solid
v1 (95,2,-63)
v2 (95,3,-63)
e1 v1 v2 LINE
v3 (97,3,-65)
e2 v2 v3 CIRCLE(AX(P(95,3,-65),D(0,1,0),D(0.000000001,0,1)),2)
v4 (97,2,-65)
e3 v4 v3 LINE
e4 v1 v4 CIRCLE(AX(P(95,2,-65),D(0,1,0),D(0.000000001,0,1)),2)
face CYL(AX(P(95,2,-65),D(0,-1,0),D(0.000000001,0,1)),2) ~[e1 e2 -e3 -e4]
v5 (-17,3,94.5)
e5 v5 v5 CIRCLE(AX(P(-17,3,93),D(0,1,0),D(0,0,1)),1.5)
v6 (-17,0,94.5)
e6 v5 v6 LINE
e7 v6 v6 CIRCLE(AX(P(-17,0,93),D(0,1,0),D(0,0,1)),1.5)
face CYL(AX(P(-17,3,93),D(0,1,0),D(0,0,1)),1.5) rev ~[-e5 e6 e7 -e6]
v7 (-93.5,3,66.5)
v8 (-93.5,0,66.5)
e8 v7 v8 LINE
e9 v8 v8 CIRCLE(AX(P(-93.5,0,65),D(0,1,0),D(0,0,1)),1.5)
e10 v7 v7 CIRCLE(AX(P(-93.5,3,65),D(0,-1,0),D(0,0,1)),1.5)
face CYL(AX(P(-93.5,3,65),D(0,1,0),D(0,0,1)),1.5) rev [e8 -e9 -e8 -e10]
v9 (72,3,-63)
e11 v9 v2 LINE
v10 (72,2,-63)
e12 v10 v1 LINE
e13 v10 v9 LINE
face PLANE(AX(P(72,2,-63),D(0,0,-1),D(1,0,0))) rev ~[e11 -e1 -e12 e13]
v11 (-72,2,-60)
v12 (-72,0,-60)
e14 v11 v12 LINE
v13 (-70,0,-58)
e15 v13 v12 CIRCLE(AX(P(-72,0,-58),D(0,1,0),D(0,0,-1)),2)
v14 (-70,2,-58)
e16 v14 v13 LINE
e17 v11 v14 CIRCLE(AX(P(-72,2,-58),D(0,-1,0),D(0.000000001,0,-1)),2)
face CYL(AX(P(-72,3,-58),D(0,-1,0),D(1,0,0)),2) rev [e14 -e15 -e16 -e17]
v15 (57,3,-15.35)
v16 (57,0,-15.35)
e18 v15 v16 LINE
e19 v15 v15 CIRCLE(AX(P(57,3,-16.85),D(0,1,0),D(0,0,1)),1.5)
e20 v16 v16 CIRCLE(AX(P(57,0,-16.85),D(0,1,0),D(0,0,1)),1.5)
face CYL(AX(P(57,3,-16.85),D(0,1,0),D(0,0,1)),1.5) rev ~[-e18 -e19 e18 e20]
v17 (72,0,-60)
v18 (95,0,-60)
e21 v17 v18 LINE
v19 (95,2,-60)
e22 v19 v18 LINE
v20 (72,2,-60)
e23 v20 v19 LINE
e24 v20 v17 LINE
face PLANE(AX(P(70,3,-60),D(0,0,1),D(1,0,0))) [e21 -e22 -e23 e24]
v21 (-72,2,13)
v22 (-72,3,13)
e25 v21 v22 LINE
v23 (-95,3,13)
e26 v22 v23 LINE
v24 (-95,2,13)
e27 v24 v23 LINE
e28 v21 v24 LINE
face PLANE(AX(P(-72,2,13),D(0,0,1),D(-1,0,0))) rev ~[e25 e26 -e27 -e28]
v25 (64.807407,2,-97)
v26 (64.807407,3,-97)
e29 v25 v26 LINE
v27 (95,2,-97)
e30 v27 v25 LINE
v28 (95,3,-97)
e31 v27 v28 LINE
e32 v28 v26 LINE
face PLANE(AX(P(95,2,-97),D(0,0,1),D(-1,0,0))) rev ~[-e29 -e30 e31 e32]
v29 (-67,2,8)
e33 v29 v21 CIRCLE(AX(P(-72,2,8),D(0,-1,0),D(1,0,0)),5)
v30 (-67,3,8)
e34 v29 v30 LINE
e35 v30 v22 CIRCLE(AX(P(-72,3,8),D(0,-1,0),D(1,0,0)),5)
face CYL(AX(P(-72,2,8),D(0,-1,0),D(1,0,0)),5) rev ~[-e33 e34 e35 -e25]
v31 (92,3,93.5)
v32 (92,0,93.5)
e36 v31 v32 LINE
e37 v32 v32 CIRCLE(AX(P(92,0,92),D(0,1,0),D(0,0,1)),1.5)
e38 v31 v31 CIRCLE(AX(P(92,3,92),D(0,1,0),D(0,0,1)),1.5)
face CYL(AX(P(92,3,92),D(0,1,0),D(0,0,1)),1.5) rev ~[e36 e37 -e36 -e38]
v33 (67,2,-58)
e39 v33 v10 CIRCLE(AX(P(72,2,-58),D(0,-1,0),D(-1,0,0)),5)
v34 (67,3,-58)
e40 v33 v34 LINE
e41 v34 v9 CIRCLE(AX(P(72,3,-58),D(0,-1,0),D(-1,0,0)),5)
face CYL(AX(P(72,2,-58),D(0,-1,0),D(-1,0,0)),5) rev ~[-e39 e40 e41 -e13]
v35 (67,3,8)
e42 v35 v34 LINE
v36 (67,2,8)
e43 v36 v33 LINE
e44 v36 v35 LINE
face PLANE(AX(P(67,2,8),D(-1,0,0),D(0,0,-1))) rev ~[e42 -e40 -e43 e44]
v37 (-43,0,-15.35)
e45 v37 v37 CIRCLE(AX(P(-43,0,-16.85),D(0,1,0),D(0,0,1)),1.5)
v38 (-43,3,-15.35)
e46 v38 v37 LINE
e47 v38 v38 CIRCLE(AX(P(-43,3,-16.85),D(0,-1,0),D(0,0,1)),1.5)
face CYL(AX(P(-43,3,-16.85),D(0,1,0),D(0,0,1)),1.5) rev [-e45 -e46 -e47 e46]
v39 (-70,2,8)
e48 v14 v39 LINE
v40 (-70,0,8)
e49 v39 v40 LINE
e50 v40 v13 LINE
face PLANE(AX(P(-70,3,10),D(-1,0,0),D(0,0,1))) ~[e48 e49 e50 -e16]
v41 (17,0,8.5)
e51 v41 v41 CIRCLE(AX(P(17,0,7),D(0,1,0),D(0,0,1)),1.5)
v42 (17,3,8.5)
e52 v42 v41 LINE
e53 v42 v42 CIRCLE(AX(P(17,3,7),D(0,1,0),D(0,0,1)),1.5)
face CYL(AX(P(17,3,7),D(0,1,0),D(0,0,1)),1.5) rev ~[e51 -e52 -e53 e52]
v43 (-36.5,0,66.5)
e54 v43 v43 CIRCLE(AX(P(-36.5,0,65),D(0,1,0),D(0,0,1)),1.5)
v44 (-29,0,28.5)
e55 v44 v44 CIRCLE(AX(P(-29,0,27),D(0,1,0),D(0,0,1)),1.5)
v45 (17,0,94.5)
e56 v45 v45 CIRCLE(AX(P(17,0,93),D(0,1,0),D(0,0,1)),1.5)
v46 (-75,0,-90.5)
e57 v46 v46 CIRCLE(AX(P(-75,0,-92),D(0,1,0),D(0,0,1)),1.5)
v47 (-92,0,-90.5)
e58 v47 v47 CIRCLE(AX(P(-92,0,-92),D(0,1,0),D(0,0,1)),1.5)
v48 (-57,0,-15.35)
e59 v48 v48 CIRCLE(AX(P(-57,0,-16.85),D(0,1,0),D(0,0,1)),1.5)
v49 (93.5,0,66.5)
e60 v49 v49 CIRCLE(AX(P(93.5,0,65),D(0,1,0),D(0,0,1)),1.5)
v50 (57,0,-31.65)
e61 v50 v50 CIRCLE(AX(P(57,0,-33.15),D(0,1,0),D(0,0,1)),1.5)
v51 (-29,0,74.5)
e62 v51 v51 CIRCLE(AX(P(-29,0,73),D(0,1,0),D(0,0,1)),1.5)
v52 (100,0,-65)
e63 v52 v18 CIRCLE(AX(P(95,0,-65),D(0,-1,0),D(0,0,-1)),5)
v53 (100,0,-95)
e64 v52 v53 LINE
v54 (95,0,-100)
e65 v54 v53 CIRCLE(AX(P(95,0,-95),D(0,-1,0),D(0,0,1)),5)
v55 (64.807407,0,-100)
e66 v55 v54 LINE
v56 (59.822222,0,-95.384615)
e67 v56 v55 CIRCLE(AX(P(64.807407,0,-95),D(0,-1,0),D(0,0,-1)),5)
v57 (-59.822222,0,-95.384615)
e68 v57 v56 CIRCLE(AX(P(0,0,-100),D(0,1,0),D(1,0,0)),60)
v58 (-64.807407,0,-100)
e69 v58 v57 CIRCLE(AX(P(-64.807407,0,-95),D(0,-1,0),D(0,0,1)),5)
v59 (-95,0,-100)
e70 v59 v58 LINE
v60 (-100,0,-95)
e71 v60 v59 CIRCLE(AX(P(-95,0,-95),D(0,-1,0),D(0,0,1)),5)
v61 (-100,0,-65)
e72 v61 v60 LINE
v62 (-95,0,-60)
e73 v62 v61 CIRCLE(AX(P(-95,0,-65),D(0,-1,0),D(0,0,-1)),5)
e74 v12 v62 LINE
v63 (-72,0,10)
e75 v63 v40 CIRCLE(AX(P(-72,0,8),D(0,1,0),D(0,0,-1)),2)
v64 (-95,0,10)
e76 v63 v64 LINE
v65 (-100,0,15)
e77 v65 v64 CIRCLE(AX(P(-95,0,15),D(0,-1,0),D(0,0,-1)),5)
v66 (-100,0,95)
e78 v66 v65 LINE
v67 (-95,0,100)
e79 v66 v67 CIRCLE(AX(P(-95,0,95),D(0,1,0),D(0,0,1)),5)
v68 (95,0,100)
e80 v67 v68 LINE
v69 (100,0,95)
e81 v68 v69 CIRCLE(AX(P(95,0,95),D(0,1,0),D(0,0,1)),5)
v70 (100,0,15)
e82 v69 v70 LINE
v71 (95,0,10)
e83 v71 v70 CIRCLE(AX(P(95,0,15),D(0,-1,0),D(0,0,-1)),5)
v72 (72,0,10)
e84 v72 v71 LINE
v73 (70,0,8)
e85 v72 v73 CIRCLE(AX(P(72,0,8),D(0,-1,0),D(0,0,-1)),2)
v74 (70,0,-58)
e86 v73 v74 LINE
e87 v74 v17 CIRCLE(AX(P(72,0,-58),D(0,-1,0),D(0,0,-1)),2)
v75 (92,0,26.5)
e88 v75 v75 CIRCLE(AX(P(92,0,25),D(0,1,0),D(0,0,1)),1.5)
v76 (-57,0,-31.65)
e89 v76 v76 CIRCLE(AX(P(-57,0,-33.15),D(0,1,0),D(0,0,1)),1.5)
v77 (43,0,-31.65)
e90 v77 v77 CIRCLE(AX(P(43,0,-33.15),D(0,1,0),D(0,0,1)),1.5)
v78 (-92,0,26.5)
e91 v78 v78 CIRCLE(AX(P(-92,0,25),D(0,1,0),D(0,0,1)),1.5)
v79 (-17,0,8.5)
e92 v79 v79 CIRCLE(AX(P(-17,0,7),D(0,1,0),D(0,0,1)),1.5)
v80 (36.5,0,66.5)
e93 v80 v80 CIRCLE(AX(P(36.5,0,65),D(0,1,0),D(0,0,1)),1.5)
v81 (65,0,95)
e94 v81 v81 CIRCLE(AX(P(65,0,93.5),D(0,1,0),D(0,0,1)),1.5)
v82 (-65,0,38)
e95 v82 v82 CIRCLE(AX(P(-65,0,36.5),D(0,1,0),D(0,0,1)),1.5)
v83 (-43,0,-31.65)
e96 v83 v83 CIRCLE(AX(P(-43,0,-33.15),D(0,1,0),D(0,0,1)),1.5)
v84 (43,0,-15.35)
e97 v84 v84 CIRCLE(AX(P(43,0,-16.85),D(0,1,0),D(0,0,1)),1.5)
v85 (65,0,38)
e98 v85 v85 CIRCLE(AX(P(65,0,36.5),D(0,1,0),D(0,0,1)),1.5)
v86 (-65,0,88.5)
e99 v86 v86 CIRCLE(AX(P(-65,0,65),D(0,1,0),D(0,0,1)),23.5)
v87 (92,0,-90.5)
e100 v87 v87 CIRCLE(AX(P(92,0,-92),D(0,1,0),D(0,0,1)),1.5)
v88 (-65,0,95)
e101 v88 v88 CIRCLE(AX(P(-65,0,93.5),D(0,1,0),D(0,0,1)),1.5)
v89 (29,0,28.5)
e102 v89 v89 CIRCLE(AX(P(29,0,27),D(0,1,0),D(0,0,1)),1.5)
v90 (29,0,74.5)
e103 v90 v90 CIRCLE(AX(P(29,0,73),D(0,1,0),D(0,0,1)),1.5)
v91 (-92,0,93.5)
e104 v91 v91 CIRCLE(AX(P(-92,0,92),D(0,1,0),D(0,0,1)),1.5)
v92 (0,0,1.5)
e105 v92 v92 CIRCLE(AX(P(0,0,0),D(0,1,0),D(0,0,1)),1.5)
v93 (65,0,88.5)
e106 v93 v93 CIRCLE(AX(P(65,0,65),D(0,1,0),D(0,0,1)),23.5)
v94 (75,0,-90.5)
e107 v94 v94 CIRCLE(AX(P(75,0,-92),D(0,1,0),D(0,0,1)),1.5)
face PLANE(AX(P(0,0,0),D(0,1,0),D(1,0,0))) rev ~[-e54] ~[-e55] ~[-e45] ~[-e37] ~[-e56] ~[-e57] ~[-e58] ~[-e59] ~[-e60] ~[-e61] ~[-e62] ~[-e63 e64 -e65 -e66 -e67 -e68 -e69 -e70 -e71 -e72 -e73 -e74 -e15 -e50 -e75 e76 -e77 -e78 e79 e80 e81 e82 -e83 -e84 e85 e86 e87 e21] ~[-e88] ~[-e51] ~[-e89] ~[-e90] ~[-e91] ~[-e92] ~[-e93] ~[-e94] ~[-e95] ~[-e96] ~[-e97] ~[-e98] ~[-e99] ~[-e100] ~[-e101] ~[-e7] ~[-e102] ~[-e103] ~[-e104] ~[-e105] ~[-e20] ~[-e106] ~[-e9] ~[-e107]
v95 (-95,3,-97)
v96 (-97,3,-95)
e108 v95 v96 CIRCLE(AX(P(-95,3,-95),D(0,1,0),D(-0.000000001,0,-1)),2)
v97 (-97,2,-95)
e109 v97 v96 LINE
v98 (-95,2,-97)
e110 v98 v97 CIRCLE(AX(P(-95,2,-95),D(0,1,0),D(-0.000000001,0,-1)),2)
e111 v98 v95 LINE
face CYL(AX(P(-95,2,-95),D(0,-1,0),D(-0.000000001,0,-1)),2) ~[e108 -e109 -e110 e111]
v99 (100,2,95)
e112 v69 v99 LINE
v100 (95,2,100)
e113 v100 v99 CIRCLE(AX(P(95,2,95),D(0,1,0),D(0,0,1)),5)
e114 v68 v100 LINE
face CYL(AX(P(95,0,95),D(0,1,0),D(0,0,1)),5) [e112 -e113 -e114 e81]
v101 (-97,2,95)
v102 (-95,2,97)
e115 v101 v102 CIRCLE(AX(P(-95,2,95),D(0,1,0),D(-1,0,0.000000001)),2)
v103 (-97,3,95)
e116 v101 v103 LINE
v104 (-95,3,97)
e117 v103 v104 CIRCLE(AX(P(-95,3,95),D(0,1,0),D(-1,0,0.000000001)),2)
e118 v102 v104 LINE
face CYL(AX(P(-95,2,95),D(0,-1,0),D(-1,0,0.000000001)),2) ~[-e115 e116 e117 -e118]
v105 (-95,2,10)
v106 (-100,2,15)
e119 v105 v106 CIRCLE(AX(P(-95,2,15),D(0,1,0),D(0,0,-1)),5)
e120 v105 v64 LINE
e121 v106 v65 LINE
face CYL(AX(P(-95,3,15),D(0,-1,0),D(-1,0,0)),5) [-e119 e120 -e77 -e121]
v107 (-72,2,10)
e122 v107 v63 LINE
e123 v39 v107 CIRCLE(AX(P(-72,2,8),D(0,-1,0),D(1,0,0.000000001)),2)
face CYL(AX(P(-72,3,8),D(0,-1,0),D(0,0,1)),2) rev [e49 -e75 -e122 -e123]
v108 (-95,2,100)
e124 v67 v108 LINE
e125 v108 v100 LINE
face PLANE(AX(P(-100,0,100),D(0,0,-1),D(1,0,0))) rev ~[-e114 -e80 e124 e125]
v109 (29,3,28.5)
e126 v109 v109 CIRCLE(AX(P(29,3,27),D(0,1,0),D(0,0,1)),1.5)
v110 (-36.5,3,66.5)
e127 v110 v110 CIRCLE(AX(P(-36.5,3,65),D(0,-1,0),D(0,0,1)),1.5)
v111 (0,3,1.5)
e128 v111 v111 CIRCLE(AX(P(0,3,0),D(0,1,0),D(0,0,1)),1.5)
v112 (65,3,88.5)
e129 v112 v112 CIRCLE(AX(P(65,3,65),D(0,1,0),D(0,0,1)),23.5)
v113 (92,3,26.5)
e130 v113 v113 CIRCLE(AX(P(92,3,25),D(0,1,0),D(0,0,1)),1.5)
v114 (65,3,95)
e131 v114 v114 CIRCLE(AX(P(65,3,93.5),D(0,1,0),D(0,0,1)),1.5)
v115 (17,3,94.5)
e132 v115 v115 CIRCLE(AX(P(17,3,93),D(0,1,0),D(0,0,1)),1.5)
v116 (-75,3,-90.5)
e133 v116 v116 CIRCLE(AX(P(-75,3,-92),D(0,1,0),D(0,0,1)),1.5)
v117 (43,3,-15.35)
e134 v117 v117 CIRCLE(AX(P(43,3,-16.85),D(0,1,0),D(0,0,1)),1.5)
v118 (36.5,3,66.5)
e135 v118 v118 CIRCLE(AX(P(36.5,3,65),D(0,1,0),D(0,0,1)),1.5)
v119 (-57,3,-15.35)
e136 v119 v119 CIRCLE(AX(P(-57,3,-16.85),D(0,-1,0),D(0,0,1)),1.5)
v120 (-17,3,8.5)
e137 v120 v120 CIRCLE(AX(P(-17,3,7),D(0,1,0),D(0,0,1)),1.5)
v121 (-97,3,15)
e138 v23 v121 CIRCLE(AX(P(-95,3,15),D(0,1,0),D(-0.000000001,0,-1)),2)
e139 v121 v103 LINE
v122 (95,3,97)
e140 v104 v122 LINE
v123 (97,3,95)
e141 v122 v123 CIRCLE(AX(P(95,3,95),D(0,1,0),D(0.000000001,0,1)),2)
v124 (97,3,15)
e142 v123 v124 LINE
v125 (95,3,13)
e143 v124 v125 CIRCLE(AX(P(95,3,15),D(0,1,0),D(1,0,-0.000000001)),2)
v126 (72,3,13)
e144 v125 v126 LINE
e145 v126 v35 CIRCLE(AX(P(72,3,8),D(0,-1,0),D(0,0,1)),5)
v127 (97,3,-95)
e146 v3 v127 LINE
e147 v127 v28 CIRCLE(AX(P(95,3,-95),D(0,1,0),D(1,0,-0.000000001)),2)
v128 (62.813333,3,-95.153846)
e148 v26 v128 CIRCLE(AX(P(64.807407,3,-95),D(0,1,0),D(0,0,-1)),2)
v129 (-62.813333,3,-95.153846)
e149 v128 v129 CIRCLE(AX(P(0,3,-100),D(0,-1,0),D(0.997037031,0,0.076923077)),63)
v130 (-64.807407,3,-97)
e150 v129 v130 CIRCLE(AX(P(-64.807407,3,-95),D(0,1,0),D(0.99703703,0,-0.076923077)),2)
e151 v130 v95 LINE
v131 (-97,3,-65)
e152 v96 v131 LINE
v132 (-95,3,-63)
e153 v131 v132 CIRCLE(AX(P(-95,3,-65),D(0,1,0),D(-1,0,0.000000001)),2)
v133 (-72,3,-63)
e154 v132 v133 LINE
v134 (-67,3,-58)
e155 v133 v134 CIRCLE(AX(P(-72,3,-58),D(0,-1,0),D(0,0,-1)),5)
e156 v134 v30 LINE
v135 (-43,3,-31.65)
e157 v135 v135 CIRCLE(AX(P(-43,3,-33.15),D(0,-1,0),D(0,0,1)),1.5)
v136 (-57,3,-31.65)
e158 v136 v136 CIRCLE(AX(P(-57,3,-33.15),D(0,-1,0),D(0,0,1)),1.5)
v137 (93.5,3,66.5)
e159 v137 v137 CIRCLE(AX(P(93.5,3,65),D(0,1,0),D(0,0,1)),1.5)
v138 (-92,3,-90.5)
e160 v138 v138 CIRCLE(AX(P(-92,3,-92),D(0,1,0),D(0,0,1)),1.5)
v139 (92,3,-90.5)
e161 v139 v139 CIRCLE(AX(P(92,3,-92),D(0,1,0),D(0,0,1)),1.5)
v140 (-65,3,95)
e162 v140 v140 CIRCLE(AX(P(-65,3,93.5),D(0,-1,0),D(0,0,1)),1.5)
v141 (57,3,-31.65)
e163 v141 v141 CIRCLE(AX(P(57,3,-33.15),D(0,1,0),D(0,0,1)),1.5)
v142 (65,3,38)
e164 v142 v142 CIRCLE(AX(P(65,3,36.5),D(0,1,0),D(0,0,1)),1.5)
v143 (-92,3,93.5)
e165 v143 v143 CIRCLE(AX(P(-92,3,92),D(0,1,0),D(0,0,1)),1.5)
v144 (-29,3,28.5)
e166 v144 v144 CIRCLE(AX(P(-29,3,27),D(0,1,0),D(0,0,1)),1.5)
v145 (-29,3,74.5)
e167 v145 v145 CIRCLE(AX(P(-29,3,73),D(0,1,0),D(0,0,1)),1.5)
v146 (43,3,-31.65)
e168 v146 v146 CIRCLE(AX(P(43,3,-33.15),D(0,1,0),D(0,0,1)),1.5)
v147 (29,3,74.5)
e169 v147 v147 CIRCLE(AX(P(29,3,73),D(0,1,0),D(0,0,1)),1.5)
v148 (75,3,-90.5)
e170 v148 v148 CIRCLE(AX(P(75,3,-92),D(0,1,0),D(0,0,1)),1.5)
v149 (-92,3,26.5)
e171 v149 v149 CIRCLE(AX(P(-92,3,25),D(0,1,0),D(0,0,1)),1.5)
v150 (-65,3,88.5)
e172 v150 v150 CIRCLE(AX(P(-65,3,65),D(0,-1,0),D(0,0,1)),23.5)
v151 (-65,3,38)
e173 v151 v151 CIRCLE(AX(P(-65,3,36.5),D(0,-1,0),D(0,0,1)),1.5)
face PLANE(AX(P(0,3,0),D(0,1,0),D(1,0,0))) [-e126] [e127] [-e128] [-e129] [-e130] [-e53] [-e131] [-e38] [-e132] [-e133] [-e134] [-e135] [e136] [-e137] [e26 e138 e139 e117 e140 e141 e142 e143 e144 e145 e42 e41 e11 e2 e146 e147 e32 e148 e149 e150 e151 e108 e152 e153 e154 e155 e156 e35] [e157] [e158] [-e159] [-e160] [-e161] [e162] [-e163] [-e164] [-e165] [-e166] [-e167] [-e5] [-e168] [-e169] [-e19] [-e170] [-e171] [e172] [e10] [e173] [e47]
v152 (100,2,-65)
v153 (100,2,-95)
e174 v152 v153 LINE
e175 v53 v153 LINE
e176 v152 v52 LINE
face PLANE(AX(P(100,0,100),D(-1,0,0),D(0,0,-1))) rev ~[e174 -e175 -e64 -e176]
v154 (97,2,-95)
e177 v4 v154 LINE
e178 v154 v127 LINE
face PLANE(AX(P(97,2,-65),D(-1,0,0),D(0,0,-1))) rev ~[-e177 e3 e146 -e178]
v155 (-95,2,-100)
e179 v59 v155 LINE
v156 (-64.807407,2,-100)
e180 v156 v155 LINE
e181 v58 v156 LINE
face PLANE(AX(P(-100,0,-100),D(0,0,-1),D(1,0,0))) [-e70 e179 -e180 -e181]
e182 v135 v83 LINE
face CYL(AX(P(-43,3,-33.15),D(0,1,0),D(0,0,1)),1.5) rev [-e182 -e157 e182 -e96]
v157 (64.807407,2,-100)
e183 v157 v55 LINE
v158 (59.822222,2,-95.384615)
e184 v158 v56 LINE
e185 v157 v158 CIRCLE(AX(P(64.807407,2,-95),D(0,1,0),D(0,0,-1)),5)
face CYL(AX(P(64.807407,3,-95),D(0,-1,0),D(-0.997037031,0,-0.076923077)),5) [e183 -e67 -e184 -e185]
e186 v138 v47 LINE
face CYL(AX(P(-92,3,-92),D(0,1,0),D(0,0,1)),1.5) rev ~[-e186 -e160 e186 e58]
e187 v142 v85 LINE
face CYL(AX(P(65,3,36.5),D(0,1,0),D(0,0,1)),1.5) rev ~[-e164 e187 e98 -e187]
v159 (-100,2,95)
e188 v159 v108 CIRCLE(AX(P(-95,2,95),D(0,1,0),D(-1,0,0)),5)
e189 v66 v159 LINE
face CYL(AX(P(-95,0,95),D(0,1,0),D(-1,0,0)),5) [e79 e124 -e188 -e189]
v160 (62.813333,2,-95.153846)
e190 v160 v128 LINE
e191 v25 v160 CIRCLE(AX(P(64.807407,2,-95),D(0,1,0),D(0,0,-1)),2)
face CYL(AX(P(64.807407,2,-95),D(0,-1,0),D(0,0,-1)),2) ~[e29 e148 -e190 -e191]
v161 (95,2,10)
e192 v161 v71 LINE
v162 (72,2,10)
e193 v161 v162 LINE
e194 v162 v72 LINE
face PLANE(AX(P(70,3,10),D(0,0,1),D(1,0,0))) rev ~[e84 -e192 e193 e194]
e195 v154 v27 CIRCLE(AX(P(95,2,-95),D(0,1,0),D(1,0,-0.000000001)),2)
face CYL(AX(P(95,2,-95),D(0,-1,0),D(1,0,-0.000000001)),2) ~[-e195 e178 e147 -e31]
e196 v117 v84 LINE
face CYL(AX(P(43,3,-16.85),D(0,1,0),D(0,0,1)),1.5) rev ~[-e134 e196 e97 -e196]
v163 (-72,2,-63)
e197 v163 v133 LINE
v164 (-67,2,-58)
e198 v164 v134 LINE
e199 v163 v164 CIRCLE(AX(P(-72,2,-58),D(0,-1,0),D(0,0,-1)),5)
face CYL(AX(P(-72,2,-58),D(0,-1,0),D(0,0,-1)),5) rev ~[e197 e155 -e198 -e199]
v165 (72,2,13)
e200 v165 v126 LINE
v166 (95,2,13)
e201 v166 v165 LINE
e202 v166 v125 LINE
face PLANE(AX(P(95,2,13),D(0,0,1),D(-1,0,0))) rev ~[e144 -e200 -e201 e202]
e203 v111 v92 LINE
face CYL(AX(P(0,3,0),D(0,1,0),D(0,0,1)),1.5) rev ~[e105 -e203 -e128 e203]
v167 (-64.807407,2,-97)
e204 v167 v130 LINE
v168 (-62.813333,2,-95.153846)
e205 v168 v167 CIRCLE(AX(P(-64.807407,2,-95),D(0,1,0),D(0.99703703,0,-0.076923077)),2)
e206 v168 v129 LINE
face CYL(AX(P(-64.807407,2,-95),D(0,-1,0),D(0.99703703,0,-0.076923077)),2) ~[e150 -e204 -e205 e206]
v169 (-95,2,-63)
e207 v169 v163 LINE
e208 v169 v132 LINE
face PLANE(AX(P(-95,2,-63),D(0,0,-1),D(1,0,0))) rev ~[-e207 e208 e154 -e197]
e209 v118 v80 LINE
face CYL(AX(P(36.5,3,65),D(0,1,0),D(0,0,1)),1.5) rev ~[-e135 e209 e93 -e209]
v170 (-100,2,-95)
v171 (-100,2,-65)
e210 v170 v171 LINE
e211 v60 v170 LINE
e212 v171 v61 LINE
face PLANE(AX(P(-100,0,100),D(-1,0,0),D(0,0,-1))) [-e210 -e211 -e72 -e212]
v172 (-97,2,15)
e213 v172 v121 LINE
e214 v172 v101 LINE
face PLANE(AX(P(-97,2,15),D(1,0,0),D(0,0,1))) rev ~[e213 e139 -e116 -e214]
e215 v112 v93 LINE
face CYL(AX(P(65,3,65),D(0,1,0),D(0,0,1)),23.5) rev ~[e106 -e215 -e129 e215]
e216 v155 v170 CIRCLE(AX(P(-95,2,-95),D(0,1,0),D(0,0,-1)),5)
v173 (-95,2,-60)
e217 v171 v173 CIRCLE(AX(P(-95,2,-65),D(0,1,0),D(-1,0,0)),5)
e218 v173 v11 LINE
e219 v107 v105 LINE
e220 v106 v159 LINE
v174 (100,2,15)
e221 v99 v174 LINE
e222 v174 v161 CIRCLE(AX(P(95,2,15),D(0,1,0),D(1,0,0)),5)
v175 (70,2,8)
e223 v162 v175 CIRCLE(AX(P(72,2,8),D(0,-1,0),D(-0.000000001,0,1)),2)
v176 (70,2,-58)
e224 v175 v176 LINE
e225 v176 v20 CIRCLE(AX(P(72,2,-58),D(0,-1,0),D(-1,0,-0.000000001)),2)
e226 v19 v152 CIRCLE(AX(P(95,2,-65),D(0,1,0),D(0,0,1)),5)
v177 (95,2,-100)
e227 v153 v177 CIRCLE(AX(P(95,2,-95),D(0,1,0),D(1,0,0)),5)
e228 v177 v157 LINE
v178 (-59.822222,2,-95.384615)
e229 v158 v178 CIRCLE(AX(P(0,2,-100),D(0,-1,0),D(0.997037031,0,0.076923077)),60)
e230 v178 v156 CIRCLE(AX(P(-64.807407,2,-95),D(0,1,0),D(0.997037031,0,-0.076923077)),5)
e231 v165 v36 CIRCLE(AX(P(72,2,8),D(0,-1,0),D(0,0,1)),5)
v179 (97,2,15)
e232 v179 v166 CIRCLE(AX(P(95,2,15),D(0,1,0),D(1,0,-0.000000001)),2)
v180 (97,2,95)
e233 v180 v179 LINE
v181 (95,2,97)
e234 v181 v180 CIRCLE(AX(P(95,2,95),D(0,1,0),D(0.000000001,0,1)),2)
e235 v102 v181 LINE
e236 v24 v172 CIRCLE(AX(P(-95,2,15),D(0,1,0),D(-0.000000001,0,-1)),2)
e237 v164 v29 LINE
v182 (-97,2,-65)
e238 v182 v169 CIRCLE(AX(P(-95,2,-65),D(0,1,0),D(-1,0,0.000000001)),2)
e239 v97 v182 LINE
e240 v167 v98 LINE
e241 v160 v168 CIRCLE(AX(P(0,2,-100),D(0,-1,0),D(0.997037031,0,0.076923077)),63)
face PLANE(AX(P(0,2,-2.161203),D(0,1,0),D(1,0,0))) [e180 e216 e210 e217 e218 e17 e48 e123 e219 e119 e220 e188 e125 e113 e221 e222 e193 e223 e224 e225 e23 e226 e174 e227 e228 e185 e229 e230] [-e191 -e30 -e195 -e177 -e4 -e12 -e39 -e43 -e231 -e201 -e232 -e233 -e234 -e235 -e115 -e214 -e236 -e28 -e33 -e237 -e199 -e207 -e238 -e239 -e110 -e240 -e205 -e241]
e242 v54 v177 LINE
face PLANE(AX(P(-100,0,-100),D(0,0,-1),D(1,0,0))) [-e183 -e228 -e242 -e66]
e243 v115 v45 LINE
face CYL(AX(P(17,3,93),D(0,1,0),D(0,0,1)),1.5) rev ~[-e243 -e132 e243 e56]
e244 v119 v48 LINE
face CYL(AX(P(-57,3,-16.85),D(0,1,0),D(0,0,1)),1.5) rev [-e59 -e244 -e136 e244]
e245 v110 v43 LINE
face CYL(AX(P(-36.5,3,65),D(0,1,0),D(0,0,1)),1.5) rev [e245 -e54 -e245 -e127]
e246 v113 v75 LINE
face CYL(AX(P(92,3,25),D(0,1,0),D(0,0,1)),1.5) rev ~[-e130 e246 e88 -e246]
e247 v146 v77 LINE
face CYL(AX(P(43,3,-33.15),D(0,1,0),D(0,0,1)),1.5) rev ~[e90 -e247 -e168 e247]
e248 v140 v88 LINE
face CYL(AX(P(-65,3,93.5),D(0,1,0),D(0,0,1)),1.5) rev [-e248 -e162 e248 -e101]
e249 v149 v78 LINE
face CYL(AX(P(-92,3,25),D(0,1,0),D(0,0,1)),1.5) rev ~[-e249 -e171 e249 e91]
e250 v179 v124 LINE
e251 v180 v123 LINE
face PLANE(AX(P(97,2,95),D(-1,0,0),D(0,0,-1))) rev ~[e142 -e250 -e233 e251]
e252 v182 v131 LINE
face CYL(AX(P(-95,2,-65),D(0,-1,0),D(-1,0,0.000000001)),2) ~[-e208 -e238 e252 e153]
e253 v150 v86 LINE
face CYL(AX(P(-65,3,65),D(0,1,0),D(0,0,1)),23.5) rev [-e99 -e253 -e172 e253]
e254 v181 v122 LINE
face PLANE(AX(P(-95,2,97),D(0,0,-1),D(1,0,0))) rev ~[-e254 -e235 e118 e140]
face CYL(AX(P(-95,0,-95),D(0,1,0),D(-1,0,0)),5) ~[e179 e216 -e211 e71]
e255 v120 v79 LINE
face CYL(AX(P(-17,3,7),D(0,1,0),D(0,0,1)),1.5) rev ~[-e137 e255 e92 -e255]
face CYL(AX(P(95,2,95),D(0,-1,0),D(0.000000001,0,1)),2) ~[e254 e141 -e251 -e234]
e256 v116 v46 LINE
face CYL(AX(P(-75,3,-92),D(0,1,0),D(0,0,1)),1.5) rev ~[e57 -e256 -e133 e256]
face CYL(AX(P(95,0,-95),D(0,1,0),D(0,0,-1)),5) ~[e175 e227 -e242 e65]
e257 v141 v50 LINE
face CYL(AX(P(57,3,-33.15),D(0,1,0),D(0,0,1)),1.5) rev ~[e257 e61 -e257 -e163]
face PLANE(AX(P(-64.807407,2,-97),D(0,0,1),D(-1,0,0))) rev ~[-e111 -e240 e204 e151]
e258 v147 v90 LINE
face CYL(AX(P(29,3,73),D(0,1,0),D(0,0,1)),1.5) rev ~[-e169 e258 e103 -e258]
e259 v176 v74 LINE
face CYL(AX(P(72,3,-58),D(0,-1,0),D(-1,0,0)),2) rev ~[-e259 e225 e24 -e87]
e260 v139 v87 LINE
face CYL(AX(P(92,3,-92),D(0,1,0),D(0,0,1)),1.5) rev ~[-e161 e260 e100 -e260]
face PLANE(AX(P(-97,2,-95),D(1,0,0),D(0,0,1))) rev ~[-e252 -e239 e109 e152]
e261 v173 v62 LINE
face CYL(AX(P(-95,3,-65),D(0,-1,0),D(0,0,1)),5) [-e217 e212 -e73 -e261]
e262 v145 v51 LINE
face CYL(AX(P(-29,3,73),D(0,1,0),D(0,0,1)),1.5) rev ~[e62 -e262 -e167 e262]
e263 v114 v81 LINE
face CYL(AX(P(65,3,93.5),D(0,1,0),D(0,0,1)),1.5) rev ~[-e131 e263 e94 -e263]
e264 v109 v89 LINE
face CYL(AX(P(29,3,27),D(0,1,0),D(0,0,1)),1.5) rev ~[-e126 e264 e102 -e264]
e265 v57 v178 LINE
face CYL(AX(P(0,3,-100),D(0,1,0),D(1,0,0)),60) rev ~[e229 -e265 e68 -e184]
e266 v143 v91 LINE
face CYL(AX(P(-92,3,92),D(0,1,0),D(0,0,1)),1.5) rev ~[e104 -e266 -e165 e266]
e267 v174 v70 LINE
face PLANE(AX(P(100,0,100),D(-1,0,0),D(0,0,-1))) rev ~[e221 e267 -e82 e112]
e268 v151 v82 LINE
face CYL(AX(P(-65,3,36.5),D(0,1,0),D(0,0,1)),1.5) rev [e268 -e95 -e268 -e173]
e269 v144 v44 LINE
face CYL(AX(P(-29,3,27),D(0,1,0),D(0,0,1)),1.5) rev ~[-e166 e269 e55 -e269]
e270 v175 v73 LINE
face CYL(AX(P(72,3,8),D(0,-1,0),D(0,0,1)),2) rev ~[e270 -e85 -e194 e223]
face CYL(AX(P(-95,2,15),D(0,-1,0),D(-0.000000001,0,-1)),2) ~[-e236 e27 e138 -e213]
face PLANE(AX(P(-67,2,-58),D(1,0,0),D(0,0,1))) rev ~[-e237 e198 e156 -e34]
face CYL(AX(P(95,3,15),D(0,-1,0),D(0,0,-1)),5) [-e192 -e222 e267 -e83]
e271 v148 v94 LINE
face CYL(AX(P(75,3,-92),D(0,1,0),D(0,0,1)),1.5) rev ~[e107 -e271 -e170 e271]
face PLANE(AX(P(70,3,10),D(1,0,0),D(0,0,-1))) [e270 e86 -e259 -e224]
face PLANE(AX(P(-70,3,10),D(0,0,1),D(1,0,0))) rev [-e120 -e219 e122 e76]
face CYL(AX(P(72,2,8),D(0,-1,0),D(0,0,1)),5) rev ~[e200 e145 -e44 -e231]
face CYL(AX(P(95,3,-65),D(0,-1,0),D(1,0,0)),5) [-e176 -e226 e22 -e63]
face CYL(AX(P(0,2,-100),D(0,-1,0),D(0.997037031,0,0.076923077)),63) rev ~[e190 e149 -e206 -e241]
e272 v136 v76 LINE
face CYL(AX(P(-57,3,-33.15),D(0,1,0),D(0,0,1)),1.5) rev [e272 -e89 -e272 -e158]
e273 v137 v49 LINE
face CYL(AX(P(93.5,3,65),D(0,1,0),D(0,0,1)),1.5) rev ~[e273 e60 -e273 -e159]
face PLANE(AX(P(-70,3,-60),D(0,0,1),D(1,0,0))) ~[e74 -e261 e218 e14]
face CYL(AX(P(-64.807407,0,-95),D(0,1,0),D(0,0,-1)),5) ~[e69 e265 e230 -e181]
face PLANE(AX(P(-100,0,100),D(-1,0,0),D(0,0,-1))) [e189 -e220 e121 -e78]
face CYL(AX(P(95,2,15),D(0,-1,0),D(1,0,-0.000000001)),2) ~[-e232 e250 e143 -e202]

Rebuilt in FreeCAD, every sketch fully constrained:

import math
import FreeCAD as App
import Part
import Sketcher
from FreeCAD import Vector
Q = App.Units.Quantity


def edges_at(feature, points):
    """Names of the edges that pass closest to the given points."""
    edges = feature.Shape.Edges
    near = lambda p: min(range(len(edges)), key=lambda i: edges[i].distToShape(Part.Vertex(*p))[0])
    return sorted({f"Edge{near(p) + 1}" for p in points})

doc = App.newDocument("Part")
body = doc.addObject("PartDesign::Body", "Body")

# Sketch on XZ plane
sketch1 = body.newObject("Sketcher::SketchObject", "Sketch")
sketch1.AttachmentSupport = (doc.getObject("XZ_Plane"), [""])
sketch1.MapMode = "FlatFace"
sketch1.addGeometry([
    Part.LineSegment(Vector(-100, -100, 0), Vector(-100, 100, 0)),
    Part.LineSegment(Vector(-100, 100, 0), Vector(100, 100, 0)),
    Part.LineSegment(Vector(100, 100, 0), Vector(100, -100, 0)),
    Part.LineSegment(Vector(100, -100, 0), Vector(-100, -100, 0)),
], False)
sketch1.addConstraint([
    Sketcher.Constraint("Coincident", 0, 2, 1, 1),
    Sketcher.Constraint("Coincident", 1, 2, 2, 1),
    Sketcher.Constraint("Coincident", 2, 2, 3, 1),
    Sketcher.Constraint("Coincident", 3, 2, 0, 1),
    Sketcher.Constraint("Vertical", 0),
    Sketcher.Constraint("Horizontal", 1),
    Sketcher.Constraint("Vertical", 2),
    Sketcher.Constraint("Horizontal", 3),
    Sketcher.Constraint("Symmetric", 0, 2, 2, 2, -1, 1),
    Sketcher.Constraint("Equal", 3, 0),
    Sketcher.Constraint("DistanceX", 1, 1, 1, 2, Q("200 mm")),
])
pad1 = body.newObject("PartDesign::Pad", "Pad")
pad1.Profile = sketch1
pad1.Length = 3
pad1.Reversed = True

# Sketch on XZ plane
sketch2 = body.newObject("Sketcher::SketchObject", "Sketch001")
sketch2.AttachmentSupport = (doc.getObject("XZ_Plane"), [""])
sketch2.MapMode = "FlatFace"
sketch2.AttachmentOffset = App.Placement(Vector(0, 0, -3), App.Rotation())
sketch2.addGeometry([
    Part.Circle(Vector(92, -92, 0), Vector(0, 0, 1), 1.5),  # 0
    Part.Circle(Vector(92, 92, 0), Vector(0, 0, 1), 1.5),  # 1
    Part.Circle(Vector(-92, 92, 0), Vector(0, 0, 1), 1.5),  # 2
    Part.Circle(Vector(-92, -92, 0), Vector(0, 0, 1), 1.5),  # 3
    Part.Circle(Vector(92, 25, 0), Vector(0, 0, 1), 1.5),  # 4
    Part.Circle(Vector(93.5, 65, 0), Vector(0, 0, 1), 1.5),  # 5
    Part.Circle(Vector(17, 93, 0), Vector(0, 0, 1), 1.5),  # 6
    Part.Circle(Vector(29, 73, 0), Vector(0, 0, 1), 1.5),  # 7
    Part.Circle(Vector(75, -92, 0), Vector(0, 0, 1), 1.5),  # 8
    Part.Circle(Vector(29, 27, 0), Vector(0, 0, 1), 1.5),  # 9
    Part.Circle(Vector(17, 7, 0), Vector(0, 0, 1), 1.5),  # 10
    Part.Circle(Vector(-92, 25, 0), Vector(0, 0, 1), 1.5),  # 11
    Part.Circle(Vector(-17, 93, 0), Vector(0, 0, 1), 1.5),  # 12
    Part.Circle(Vector(-29, 73, 0), Vector(0, 0, 1), 1.5),  # 13
    Part.Circle(Vector(-29, 27, 0), Vector(0, 0, 1), 1.5),  # 14
    Part.Circle(Vector(-17, 7, 0), Vector(0, 0, 1), 1.5),  # 15
    Part.Circle(Vector(65, 65, 0), Vector(0, 0, 1), 23.5),  # 16
    Part.Circle(Vector(65, 93.5, 0), Vector(0, 0, 1), 1.5),  # 17
    Part.Circle(Vector(36.5, 65, 0), Vector(0, 0, 1), 1.5),  # 18
    Part.Circle(Vector(65, 36.5, 0), Vector(0, 0, 1), 1.5),  # 19
    Part.Circle(Vector(57, -16.85, 0), Vector(0, 0, 1), 1.5),  # 20
    Part.Circle(Vector(57, -33.15, 0), Vector(0, 0, 1), 1.5),  # 21
    Part.Circle(Vector(43, -16.85, 0), Vector(0, 0, 1), 1.5),  # 22
    Part.Circle(Vector(43, -33.15, 0), Vector(0, 0, 1), 1.5),  # 23
    Part.Circle(Vector(0, -100, 0), Vector(0, 0, 1), 60),  # 24
    Part.Circle(Vector(-75, -92, 0), Vector(0, 0, 1), 1.5),  # 25
    Part.Circle(Vector(0, 0, 0), Vector(0, 0, 1), 1.5),  # 26
    Part.LineSegment(Vector(70, -60, 0), Vector(70, 10, 0)),  # 27
    Part.LineSegment(Vector(70, 10, 0), Vector(100, 10, 0)),  # 28
    Part.LineSegment(Vector(100, 10, 0), Vector(100, -60, 0)),  # 29
    Part.LineSegment(Vector(100, -60, 0), Vector(70, -60, 0)),  # 30
], False)
sketch2.addConstraint([
    Sketcher.Constraint("Coincident", 27, 2, 28, 1),
    Sketcher.Constraint("Coincident", 28, 2, 29, 1),
    Sketcher.Constraint("Coincident", 29, 2, 30, 1),
    Sketcher.Constraint("Coincident", 30, 2, 27, 1),
    Sketcher.Constraint("Vertical", 27),
    Sketcher.Constraint("Horizontal", 28),
    Sketcher.Constraint("Vertical", 29),
    Sketcher.Constraint("Horizontal", 30),
    Sketcher.Constraint("Coincident", 26, 3, -1, 1),
    Sketcher.Constraint("Equal", 0, 1),
    Sketcher.Constraint("Equal", 1, 2),
    Sketcher.Constraint("Equal", 2, 3),
    Sketcher.Constraint("Equal", 3, 4),
    Sketcher.Constraint("Equal", 4, 5),
    Sketcher.Constraint("Equal", 5, 6),
    Sketcher.Constraint("Equal", 6, 7),
    Sketcher.Constraint("Equal", 7, 8),
    Sketcher.Constraint("Equal", 8, 9),
    Sketcher.Constraint("Equal", 9, 10),
    Sketcher.Constraint("Equal", 10, 11),
    Sketcher.Constraint("Equal", 11, 12),
    Sketcher.Constraint("Equal", 12, 13),
    Sketcher.Constraint("Equal", 13, 14),
    Sketcher.Constraint("Equal", 14, 15),
    Sketcher.Constraint("Equal", 15, 17),
    Sketcher.Constraint("Equal", 17, 18),
    Sketcher.Constraint("Equal", 18, 19),
    Sketcher.Constraint("Equal", 19, 20),
    Sketcher.Constraint("Equal", 20, 21),
    Sketcher.Constraint("Equal", 21, 22),
    Sketcher.Constraint("Equal", 22, 23),
    Sketcher.Constraint("Equal", 23, 25),
    Sketcher.Constraint("Equal", 25, 26),
    Sketcher.Constraint("Symmetric", 0, 3, 2, 3, -1, 1),
    Sketcher.Constraint("Symmetric", 1, 3, 3, 3, -1, 1),
    Sketcher.Constraint("Symmetric", 1, 3, 2, 3, -2),
    Sketcher.Constraint("Symmetric", 4, 3, 11, 3, -2),
    Sketcher.Constraint("Symmetric", 6, 3, 12, 3, -2),
    Sketcher.Constraint("Symmetric", 7, 3, 13, 3, -2),
    Sketcher.Constraint("Symmetric", 9, 3, 14, 3, -2),
    Sketcher.Constraint("Symmetric", 10, 3, 15, 3, -2),
    Sketcher.Constraint("Symmetric", 8, 3, 25, 3, -2),
    Sketcher.Constraint("PointOnObject", 24, 3, -2),
    Sketcher.Constraint("Horizontal", 3, 3, 8, 3),
    Sketcher.Constraint("Horizontal", 5, 3, 16, 3),
    Sketcher.Constraint("Horizontal", 16, 3, 18, 3),
    Sketcher.Constraint("Horizontal", 20, 3, 22, 3),
    Sketcher.Constraint("Horizontal", 21, 3, 23, 3),
    Sketcher.Constraint("Vertical", 1, 3, 4, 3),
    Sketcher.Constraint("Vertical", 7, 3, 9, 3),
    Sketcher.Constraint("Vertical", 6, 3, 10, 3),
    Sketcher.Constraint("Vertical", 16, 3, 17, 3),
    Sketcher.Constraint("Vertical", 17, 3, 19, 3),
    Sketcher.Constraint("Vertical", 20, 3, 21, 3),
    Sketcher.Constraint("Vertical", 22, 3, 23, 3),
    Sketcher.Constraint("Diameter", 0, Q("3 mm")),
    Sketcher.Constraint("Diameter", 16, Q("47 mm")),
    Sketcher.Constraint("Diameter", 24, Q("120 mm")),
    Sketcher.Constraint("DistanceX", 28, 1, 28, 2, Q("30 mm")),
    Sketcher.Constraint("DistanceY", 27, 1, 27, 2, Q("70 mm")),
    Sketcher.Constraint("DistanceX", -1, 1, 0, 3, Q("92 mm")),
    Sketcher.Constraint("DistanceY", 0, 3, -1, 1, Q("92 mm")),
    Sketcher.Constraint("DistanceY", -1, 1, 4, 3, Q("25 mm")),
    Sketcher.Constraint("DistanceY", -1, 1, 5, 3, Q("65 mm")),
    Sketcher.Constraint("DistanceX", -1, 1, 6, 3, Q("17 mm")),
    Sketcher.Constraint("DistanceY", -1, 1, 6, 3, Q("93 mm")),
    Sketcher.Constraint("DistanceX", -1, 1, 7, 3, Q("29 mm")),
    Sketcher.Constraint("DistanceY", -1, 1, 7, 3, Q("73 mm")),
    Sketcher.Constraint("DistanceX", -1, 1, 8, 3, Q("75 mm")),
    Sketcher.Constraint("DistanceY", -1, 1, 9, 3, Q("27 mm")),
    Sketcher.Constraint("DistanceY", -1, 1, 10, 3, Q("7 mm")),
    Sketcher.Constraint("DistanceX", -1, 1, 16, 3, Q("65 mm")),
    Sketcher.Constraint("DistanceX", -1, 1, 20, 3, Q("57 mm")),
    Sketcher.Constraint("DistanceX", -1, 1, 22, 3, Q("43 mm")),
    Sketcher.Constraint("DistanceY", 24, 3, -1, 1, Q("100 mm")),
    Sketcher.Constraint("DistanceX", -1, 1, 27, 2, Q("70 mm")),
    Sketcher.Constraint("DistanceY", -1, 1, 27, 2, Q("10 mm")),
    Sketcher.Constraint("DistanceX", -1, 1, 5, 3, Q("93.5 mm")),
    Sketcher.Constraint("DistanceY", -1, 1, 17, 3, Q("93.5 mm")),
    Sketcher.Constraint("DistanceX", -1, 1, 18, 3, Q("36.5 mm")),
    Sketcher.Constraint("DistanceY", -1, 1, 19, 3, Q("36.5 mm")),
    Sketcher.Constraint("DistanceY", 21, 3, 20, 3, Q("16.3 mm")),
    Sketcher.Constraint("DistanceY", 20, 3, -1, 1, Q("16.85 mm")),
])
pocket1 = body.newObject("PartDesign::Pocket", "Pocket")
pocket1.Profile = sketch2
pocket1.Length = 5
pocket1.Reversed = True
doc.recompute()

mirrored = body.newObject("PartDesign::Mirrored", "Mirrored")
mirrored.Originals = [pocket1]
mirrored.MirrorPlane = (doc.getObject("YZ_Plane"), [""])
body.Tip = mirrored
doc.recompute()

fillet = body.newObject("PartDesign::Fillet", "Fillet")
fillet.Base = (mirrored, edges_at(mirrored, [
    (-100, 1.5, 10),
    (-100, 1.5, -60),
    (-100, 1.5, -100),
    (100, 1.5, -100),
    (100, 1.5, 100),
    (-100, 1.5, 100),
    (60, 1.5, -100),
    (-60, 1.5, -100),
    (100, 1.5, -60),
    (100, 1.5, 10),
]))
fillet.Radius = 5
doc.recompute()

fillet2 = body.newObject("PartDesign::Fillet", "Fillet001")
fillet2.Base = (fillet, edges_at(fillet, [
    (-70, 1.5, -60),
    (-70, 1.5, 10),
    (70, 1.5, 10),
    (70, 1.5, -60),
]))
fillet2.Radius = 2

# Sketch on XZ plane
sketch3 = body.newObject("Sketcher::SketchObject", "Sketch002")
sketch3.AttachmentSupport = (doc.getObject("XZ_Plane"), [""])
sketch3.MapMode = "FlatFace"
sketch3.AttachmentOffset = App.Placement(Vector(0, 0, -2), App.Rotation())
sketch3.addGeometry([
    Part.LineSegment(Vector(-95, 100, 0), Vector(95, 100, 0)),  # 0
    Part.ArcOfCircle(Part.Circle(Vector(95, 95, 0), Vector(0, 0, 1), 5), math.radians(0), math.radians(90)),  # 1
    Part.LineSegment(Vector(100, 95, 0), Vector(100, 15, 0)),  # 2
    Part.ArcOfCircle(Part.Circle(Vector(95, 15, 0), Vector(0, 0, 1), 5), math.radians(-90), math.radians(0)),  # 3
    Part.LineSegment(Vector(95, 10, 0), Vector(72, 10, 0)),  # 4
    Part.ArcOfCircle(Part.Circle(Vector(72, 8, 0), Vector(0, 0, 1), 2), math.radians(90), math.radians(180)),  # 5
    Part.LineSegment(Vector(70, 8, 0), Vector(70, -58, 0)),  # 6
    Part.ArcOfCircle(Part.Circle(Vector(72, -58, 0), Vector(0, 0, 1), 2), math.radians(-180), math.radians(-90)),  # 7
    Part.LineSegment(Vector(72, -60, 0), Vector(95, -60, 0)),  # 8
    Part.ArcOfCircle(Part.Circle(Vector(95, -65, 0), Vector(0, 0, 1), 5), math.radians(0), math.radians(90)),  # 9
    Part.LineSegment(Vector(100, -65, 0), Vector(100, -95, 0)),  # 10
    Part.ArcOfCircle(Part.Circle(Vector(95, -95, 0), Vector(0, 0, 1), 5), math.radians(-90), math.radians(0)),  # 11
    Part.LineSegment(Vector(95, -100, 0), Vector(64.807407, -100, 0)),  # 12
    Part.ArcOfCircle(Part.Circle(Vector(64.807407, -95, 0), Vector(0, 0, 1), 5), math.radians(-175.588274), math.radians(-90)),  # 13
    Part.ArcOfCircle(Part.Circle(Vector(0, -100, 0), Vector(0, 0, 1), 60), math.radians(4.411726), math.radians(175.588274)),  # 14
    Part.ArcOfCircle(Part.Circle(Vector(-64.807407, -95, 0), Vector(0, 0, 1), 5), math.radians(-90), math.radians(-4.411726)),  # 15
    Part.LineSegment(Vector(-64.807407, -100, 0), Vector(-95, -100, 0)),  # 16
    Part.ArcOfCircle(Part.Circle(Vector(-95, -95, 0), Vector(0, 0, 1), 5), math.radians(180), math.radians(270)),  # 17
    Part.LineSegment(Vector(-100, -95, 0), Vector(-100, -65, 0)),  # 18
    Part.ArcOfCircle(Part.Circle(Vector(-95, -65, 0), Vector(0, 0, 1), 5), math.radians(90), math.radians(180)),  # 19
    Part.LineSegment(Vector(-95, -60, 0), Vector(-72, -60, 0)),  # 20
    Part.ArcOfCircle(Part.Circle(Vector(-72, -58, 0), Vector(0, 0, 1), 2), math.radians(-90), math.radians(0)),  # 21
    Part.LineSegment(Vector(-70, -58, 0), Vector(-70, 8, 0)),  # 22
    Part.ArcOfCircle(Part.Circle(Vector(-72, 8, 0), Vector(0, 0, 1), 2), math.radians(0), math.radians(90)),  # 23
    Part.LineSegment(Vector(-72, 10, 0), Vector(-95, 10, 0)),  # 24
    Part.ArcOfCircle(Part.Circle(Vector(-95, 15, 0), Vector(0, 0, 1), 5), math.radians(180), math.radians(270)),  # 25
    Part.LineSegment(Vector(-100, 15, 0), Vector(-100, 95, 0)),  # 26
    Part.ArcOfCircle(Part.Circle(Vector(-95, 95, 0), Vector(0, 0, 1), 5), math.radians(90), math.radians(180)),  # 27
    Part.LineSegment(Vector(-97, -65, 0), Vector(-97, -95, 0)),  # 28
    Part.ArcOfCircle(Part.Circle(Vector(-95, -95, 0), Vector(0, 0, 1), 2), math.radians(-180), math.radians(-90)),  # 29
    Part.LineSegment(Vector(-95, -97, 0), Vector(-64.807407, -97, 0)),  # 30
    Part.ArcOfCircle(Part.Circle(Vector(-64.807407, -95, 0), Vector(0, 0, 1), 2), math.radians(-90), math.radians(-4.411726)),  # 31
    Part.ArcOfCircle(Part.Circle(Vector(0, -100, 0), Vector(0, 0, 1), 63), math.radians(4.411726), math.radians(175.588274)),  # 32
    Part.ArcOfCircle(Part.Circle(Vector(64.807407, -95, 0), Vector(0, 0, 1), 2), math.radians(-175.588274), math.radians(-90)),  # 33
    Part.LineSegment(Vector(64.807407, -97, 0), Vector(95, -97, 0)),  # 34
    Part.ArcOfCircle(Part.Circle(Vector(95, -95, 0), Vector(0, 0, 1), 2), math.radians(-90), math.radians(0)),  # 35
    Part.LineSegment(Vector(97, -95, 0), Vector(97, -65, 0)),  # 36
    Part.ArcOfCircle(Part.Circle(Vector(95, -65, 0), Vector(0, 0, 1), 2), math.radians(0), math.radians(90)),  # 37
    Part.LineSegment(Vector(95, -63, 0), Vector(72, -63, 0)),  # 38
    Part.ArcOfCircle(Part.Circle(Vector(72, -58, 0), Vector(0, 0, 1), 5), math.radians(180), math.radians(270)),  # 39
    Part.LineSegment(Vector(67, -58, 0), Vector(67, 8, 0)),  # 40
    Part.ArcOfCircle(Part.Circle(Vector(72, 8, 0), Vector(0, 0, 1), 5), math.radians(90), math.radians(180)),  # 41
    Part.LineSegment(Vector(72, 13, 0), Vector(95, 13, 0)),  # 42
    Part.ArcOfCircle(Part.Circle(Vector(95, 15, 0), Vector(0, 0, 1), 2), math.radians(-90), math.radians(0)),  # 43
    Part.LineSegment(Vector(97, 15, 0), Vector(97, 95, 0)),  # 44
    Part.ArcOfCircle(Part.Circle(Vector(95, 95, 0), Vector(0, 0, 1), 2), math.radians(0), math.radians(90)),  # 45
    Part.LineSegment(Vector(95, 97, 0), Vector(-95, 97, 0)),  # 46
    Part.ArcOfCircle(Part.Circle(Vector(-95, 95, 0), Vector(0, 0, 1), 2), math.radians(90), math.radians(180)),  # 47
    Part.LineSegment(Vector(-97, 95, 0), Vector(-97, 15, 0)),  # 48
    Part.ArcOfCircle(Part.Circle(Vector(-95, 15, 0), Vector(0, 0, 1), 2), math.radians(-180), math.radians(-90)),  # 49
    Part.LineSegment(Vector(-95, 13, 0), Vector(-72, 13, 0)),  # 50
    Part.ArcOfCircle(Part.Circle(Vector(-72, 8, 0), Vector(0, 0, 1), 5), math.radians(0), math.radians(90)),  # 51
    Part.LineSegment(Vector(-67, 8, 0), Vector(-67, -58, 0)),  # 52
    Part.ArcOfCircle(Part.Circle(Vector(-72, -58, 0), Vector(0, 0, 1), 5), math.radians(-90), math.radians(0)),  # 53
    Part.LineSegment(Vector(-72, -63, 0), Vector(-95, -63, 0)),  # 54
    Part.ArcOfCircle(Part.Circle(Vector(-95, -65, 0), Vector(0, 0, 1), 2), math.radians(90), math.radians(180)),  # 55
], False)
sketch3.addConstraint([
    Sketcher.Constraint("Tangent", 0, 2, 1, 2),
    Sketcher.Constraint("Tangent", 1, 1, 2, 1),
    Sketcher.Constraint("Tangent", 2, 2, 3, 2),
    Sketcher.Constraint("Tangent", 3, 1, 4, 1),
    Sketcher.Constraint("Tangent", 4, 2, 5, 1),
    Sketcher.Constraint("Tangent", 5, 2, 6, 1),
    Sketcher.Constraint("Tangent", 6, 2, 7, 1),
    Sketcher.Constraint("Tangent", 7, 2, 8, 1),
    Sketcher.Constraint("Tangent", 8, 2, 9, 2),
    Sketcher.Constraint("Tangent", 9, 1, 10, 1),
    Sketcher.Constraint("Tangent", 10, 2, 11, 2),
    Sketcher.Constraint("Tangent", 11, 1, 12, 1),
    Sketcher.Constraint("Tangent", 12, 2, 13, 2),
    Sketcher.Constraint("Tangent", 13, 1, 14, 1),
    Sketcher.Constraint("Tangent", 14, 2, 15, 2),
    Sketcher.Constraint("Tangent", 15, 1, 16, 1),
    Sketcher.Constraint("Tangent", 16, 2, 17, 2),
    Sketcher.Constraint("Tangent", 17, 1, 18, 1),
    Sketcher.Constraint("Tangent", 18, 2, 19, 2),
    Sketcher.Constraint("Tangent", 19, 1, 20, 1),
    Sketcher.Constraint("Tangent", 20, 2, 21, 1),
    Sketcher.Constraint("Tangent", 21, 2, 22, 1),
    Sketcher.Constraint("Tangent", 22, 2, 23, 1),
    Sketcher.Constraint("Tangent", 23, 2, 24, 1),
    Sketcher.Constraint("Tangent", 24, 2, 25, 2),
    Sketcher.Constraint("Tangent", 25, 1, 26, 1),
    Sketcher.Constraint("Tangent", 26, 2, 27, 2),
    Sketcher.Constraint("Tangent", 27, 1, 0, 1),
    Sketcher.Constraint("Tangent", 28, 2, 29, 1),
    Sketcher.Constraint("Tangent", 29, 2, 30, 1),
    Sketcher.Constraint("Tangent", 30, 2, 31, 1),
    Sketcher.Constraint("Tangent", 31, 2, 32, 2),
    Sketcher.Constraint("Tangent", 32, 1, 33, 1),
    Sketcher.Constraint("Tangent", 33, 2, 34, 1),
    Sketcher.Constraint("Tangent", 34, 2, 35, 1),
    Sketcher.Constraint("Tangent", 35, 2, 36, 1),
    Sketcher.Constraint("Tangent", 36, 2, 37, 1),
    Sketcher.Constraint("Tangent", 37, 2, 38, 1),
    Sketcher.Constraint("Tangent", 38, 2, 39, 2),
    Sketcher.Constraint("Tangent", 39, 1, 40, 1),
    Sketcher.Constraint("Tangent", 40, 2, 41, 2),
    Sketcher.Constraint("Tangent", 41, 1, 42, 1),
    Sketcher.Constraint("Tangent", 42, 2, 43, 1),
    Sketcher.Constraint("Tangent", 43, 2, 44, 1),
    Sketcher.Constraint("Tangent", 44, 2, 45, 1),
    Sketcher.Constraint("Tangent", 45, 2, 46, 1),
    Sketcher.Constraint("Tangent", 46, 2, 47, 1),
    Sketcher.Constraint("Tangent", 47, 2, 48, 1),
    Sketcher.Constraint("Tangent", 48, 2, 49, 1),
    Sketcher.Constraint("Tangent", 49, 2, 50, 1),
    Sketcher.Constraint("Tangent", 50, 2, 51, 2),
    Sketcher.Constraint("Tangent", 51, 1, 52, 1),
    Sketcher.Constraint("Tangent", 52, 2, 53, 2),
    Sketcher.Constraint("Tangent", 53, 1, 54, 1),
    Sketcher.Constraint("Tangent", 54, 2, 55, 1),
    Sketcher.Constraint("Tangent", 55, 2, 28, 1),
    Sketcher.Constraint("Horizontal", 0),
    Sketcher.Constraint("Vertical", 2),
    Sketcher.Constraint("Horizontal", 4),
    Sketcher.Constraint("Vertical", 6),
    Sketcher.Constraint("Horizontal", 8),
    Sketcher.Constraint("Vertical", 10),
    Sketcher.Constraint("Horizontal", 12),
    Sketcher.Constraint("Horizontal", 16),
    Sketcher.Constraint("Vertical", 18),
    Sketcher.Constraint("Horizontal", 20),
    Sketcher.Constraint("Vertical", 22),
    Sketcher.Constraint("Horizontal", 24),
    Sketcher.Constraint("Vertical", 26),
    Sketcher.Constraint("Vertical", 28),
    Sketcher.Constraint("Horizontal", 30),
    Sketcher.Constraint("Horizontal", 34),
    Sketcher.Constraint("Vertical", 36),
    Sketcher.Constraint("Horizontal", 38),
    Sketcher.Constraint("Vertical", 40),
    Sketcher.Constraint("Horizontal", 42),
    Sketcher.Constraint("Vertical", 44),
    Sketcher.Constraint("Horizontal", 46),
    Sketcher.Constraint("Vertical", 48),
    Sketcher.Constraint("Horizontal", 50),
    Sketcher.Constraint("Vertical", 52),
    Sketcher.Constraint("Horizontal", 54),
    Sketcher.Constraint("Coincident", 29, 3, 17, 3),
    Sketcher.Constraint("Coincident", 31, 3, 15, 3),
    Sketcher.Constraint("Coincident", 32, 3, 14, 3),
    Sketcher.Constraint("Coincident", 33, 3, 13, 3),
    Sketcher.Constraint("Coincident", 35, 3, 11, 3),
    Sketcher.Constraint("Coincident", 37, 3, 9, 3),
    Sketcher.Constraint("Coincident", 39, 3, 7, 3),
    Sketcher.Constraint("Coincident", 41, 3, 5, 3),
    Sketcher.Constraint("Coincident", 43, 3, 3, 3),
    Sketcher.Constraint("Coincident", 45, 3, 1, 3),
    Sketcher.Constraint("Coincident", 47, 3, 27, 3),
    Sketcher.Constraint("Coincident", 49, 3, 25, 3),
    Sketcher.Constraint("Coincident", 51, 3, 23, 3),
    Sketcher.Constraint("Coincident", 53, 3, 21, 3),
    Sketcher.Constraint("Equal", 1, 3),
    Sketcher.Constraint("Equal", 5, 7),
    Sketcher.Constraint("Equal", 3, 9),
    Sketcher.Constraint("Equal", 9, 11),
    Sketcher.Constraint("Equal", 11, 13),
    Sketcher.Constraint("Equal", 13, 15),
    Sketcher.Constraint("Equal", 15, 17),
    Sketcher.Constraint("Equal", 17, 19),
    Sketcher.Constraint("Equal", 7, 21),
    Sketcher.Constraint("Equal", 21, 23),
    Sketcher.Constraint("Equal", 19, 25),
    Sketcher.Constraint("Equal", 25, 27),
    Sketcher.Constraint("Equal", 23, 29),
    Sketcher.Constraint("Equal", 49, 55),
    Sketcher.Constraint("Symmetric", 1, 3, 17, 3, -1, 1),
    Sketcher.Constraint("Symmetric", 11, 3, 27, 3, -1, 1),
    Sketcher.Constraint("Symmetric", 9, 3, 19, 3, -2),
    Sketcher.Constraint("Symmetric", 5, 3, 23, 3, -2),
    Sketcher.Constraint("PointOnObject", 14, 3, -2),
    Sketcher.Constraint("Horizontal", 32, 3, 11, 1),
    Sketcher.Constraint("Radius", 1, Q("5 mm")),
    Sketcher.Constraint("Radius", 5, Q("2 mm")),
    Sketcher.Constraint("Radius", 14, Q("60 mm")),
    Sketcher.Constraint("DistanceX", 0, 1, 0, 2, Q("190 mm")),
    Sketcher.Constraint("DistanceX", 4, 2, 4, 1, Q("23 mm")),
    Sketcher.Constraint("DistanceY", 2, 2, 2, 1, Q("80 mm")),
    Sketcher.Constraint("DistanceY", 6, 2, 6, 1, Q("66 mm")),
    Sketcher.Constraint("DistanceY", 10, 2, 10, 1, Q("30 mm")),
])
pocket2 = body.newObject("PartDesign::Pocket", "Pocket001")
pocket2.Profile = sketch3
pocket2.Length = 1

doc.recompute()
